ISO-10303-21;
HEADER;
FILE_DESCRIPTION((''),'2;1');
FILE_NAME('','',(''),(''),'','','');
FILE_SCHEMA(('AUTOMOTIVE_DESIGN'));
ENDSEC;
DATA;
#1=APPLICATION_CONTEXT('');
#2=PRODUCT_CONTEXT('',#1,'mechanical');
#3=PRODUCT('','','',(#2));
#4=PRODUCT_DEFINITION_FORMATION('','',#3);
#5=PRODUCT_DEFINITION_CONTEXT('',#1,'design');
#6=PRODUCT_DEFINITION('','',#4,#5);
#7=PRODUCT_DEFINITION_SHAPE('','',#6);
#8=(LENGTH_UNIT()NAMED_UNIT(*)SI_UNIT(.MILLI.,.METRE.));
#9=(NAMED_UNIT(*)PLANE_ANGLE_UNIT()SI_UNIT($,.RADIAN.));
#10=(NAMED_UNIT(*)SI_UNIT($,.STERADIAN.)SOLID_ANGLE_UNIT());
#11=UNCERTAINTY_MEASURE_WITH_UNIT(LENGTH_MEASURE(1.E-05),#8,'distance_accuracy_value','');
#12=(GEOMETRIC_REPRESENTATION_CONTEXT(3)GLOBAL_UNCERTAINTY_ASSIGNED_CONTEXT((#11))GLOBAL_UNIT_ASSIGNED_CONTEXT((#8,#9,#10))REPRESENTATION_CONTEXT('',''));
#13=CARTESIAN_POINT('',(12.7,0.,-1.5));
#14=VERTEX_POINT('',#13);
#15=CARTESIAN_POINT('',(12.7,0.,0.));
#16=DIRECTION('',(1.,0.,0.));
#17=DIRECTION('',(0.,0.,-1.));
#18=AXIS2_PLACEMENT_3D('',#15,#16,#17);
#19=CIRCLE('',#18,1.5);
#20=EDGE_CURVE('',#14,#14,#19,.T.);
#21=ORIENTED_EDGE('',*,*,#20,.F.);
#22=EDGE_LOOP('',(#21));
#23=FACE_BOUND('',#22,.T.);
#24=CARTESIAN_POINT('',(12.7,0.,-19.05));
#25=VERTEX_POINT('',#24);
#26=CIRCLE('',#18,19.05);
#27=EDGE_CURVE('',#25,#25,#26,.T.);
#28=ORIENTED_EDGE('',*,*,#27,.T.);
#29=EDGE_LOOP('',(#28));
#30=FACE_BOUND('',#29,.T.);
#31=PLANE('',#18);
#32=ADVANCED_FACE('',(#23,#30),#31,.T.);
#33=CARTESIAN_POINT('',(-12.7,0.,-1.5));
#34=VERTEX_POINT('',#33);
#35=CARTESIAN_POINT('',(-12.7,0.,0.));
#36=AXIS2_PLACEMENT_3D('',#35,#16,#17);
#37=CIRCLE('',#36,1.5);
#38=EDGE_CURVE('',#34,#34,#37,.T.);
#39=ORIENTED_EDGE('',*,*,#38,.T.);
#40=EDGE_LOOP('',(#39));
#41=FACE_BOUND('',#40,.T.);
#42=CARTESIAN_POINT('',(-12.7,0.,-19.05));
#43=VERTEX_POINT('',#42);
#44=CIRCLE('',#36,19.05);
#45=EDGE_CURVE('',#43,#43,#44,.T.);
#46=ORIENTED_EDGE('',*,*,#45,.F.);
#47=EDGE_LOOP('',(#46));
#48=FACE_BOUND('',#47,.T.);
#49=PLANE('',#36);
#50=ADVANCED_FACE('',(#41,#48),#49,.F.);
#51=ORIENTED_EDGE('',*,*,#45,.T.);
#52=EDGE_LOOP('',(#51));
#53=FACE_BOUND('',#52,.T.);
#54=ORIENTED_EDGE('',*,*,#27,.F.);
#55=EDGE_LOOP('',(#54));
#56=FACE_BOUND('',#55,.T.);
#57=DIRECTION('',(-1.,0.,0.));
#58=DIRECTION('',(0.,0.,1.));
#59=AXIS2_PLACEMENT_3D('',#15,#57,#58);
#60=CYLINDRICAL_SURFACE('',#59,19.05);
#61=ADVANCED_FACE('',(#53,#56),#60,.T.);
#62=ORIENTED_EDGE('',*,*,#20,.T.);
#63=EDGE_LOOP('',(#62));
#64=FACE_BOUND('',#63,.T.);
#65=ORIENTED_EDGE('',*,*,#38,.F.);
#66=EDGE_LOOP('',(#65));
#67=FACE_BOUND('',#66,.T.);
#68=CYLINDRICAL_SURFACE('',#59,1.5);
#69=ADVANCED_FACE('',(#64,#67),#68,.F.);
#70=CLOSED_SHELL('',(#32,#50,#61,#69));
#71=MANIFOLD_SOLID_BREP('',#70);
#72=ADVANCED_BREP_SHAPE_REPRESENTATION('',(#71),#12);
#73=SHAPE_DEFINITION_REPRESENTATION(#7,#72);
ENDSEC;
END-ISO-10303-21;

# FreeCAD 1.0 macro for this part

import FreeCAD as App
import Part
import Sketcher

V = App.Vector
Q = App.Units.Quantity

doc = App.newDocument("Part")
body = doc.addObject("PartDesign::Body", "Body")

# Sketch on YZ plane
sketch1 = body.newObject("Sketcher::SketchObject", "Sketch")
sketch1.AttachmentSupport = (doc.getObject("YZ_Plane"), [""])
sketch1.MapMode = "FlatFace"
sketch1.addGeometry([
    Part.Circle(V(0, 0, 0), V(0, 0, 1), 19.1),
    Part.Circle(V(0, 0, 0), V(0, 0, 1), 1.5),
], False)
sketch1.addConstraint([
    Sketcher.Constraint("Coincident", 0, 3, -1, 1),
    Sketcher.Constraint("Coincident", 1, 3, -1, 1),
    Sketcher.Constraint("Diameter", 0, Q("1.5 in")),
    Sketcher.Constraint("Diameter", 1, 3.0),
])
pad1 = body.newObject("PartDesign::Pad", "Pad")
pad1.Profile = sketch1
pad1.Length = Q("1 in")
pad1.Midplane = True

doc.recompute()
